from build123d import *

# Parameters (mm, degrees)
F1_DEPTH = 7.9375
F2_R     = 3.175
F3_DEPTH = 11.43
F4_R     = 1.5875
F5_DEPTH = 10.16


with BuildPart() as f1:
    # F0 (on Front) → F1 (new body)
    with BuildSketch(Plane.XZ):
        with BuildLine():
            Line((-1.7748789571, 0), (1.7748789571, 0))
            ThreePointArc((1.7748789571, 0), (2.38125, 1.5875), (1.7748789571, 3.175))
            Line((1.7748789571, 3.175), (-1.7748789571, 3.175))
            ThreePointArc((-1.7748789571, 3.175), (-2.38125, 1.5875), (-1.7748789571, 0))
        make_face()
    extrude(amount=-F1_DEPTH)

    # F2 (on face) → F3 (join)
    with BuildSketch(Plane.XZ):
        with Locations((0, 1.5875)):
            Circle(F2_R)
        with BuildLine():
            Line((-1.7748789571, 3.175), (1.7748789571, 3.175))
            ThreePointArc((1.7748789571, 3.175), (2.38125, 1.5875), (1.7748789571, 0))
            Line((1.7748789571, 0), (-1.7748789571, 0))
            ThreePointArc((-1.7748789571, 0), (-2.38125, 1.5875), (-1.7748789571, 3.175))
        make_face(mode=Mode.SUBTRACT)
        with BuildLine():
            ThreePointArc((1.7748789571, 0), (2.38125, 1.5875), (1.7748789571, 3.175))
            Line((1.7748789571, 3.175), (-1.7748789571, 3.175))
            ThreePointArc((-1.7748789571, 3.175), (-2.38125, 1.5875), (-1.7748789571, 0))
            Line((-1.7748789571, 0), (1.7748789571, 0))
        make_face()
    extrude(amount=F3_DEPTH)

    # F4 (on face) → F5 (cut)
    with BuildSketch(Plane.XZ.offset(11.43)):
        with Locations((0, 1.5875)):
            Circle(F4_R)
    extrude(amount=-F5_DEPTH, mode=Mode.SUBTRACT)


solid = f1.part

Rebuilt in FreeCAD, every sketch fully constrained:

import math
import FreeCAD as App
import Part
import Sketcher
Q = App.Units.Quantity

doc = App.newDocument("Part")
params = doc.addObject("Spreadsheet::Sheet", "Params")
for row, (alias, value) in enumerate([
    ("sketch1_radius", "0.09375 in"),
    ("pad1_length", "0.3125 in"),
    ("sketch2_diameter", "0.25 in"),
    ("pad2_length", "0.45 in"),
    ("sketch3_diameter", "0.125 in"),
    ("pocket1_length", "0.4 in"),
], start=1):
    params.set(f"A{row}", alias)
    params.set(f"B{row}", "=" + value)
    params.setAlias(f"B{row}", alias)

body = doc.addObject("PartDesign::Body", "Body")

sketch1 = body.newObject("Sketcher::SketchObject", "Sketch")
sketch1.AttachmentSupport = (doc.getObject("XZ_Plane"), [""])
sketch1.MapMode = "FlatFace"
sketch1.addGeometry(Part.LineSegment(App.Vector(-1.8, 0, 0), App.Vector(1.8, 0, 0)), False)
sketch1.addGeometry(Part.ArcOfCircle(Part.Circle(App.Vector(0, 1.6, 0), App.Vector(0, 0, 1), 2.4), math.radians(-42), math.radians(42)), False)
sketch1.addGeometry(Part.LineSegment(App.Vector(1.8, 3.2, 0), App.Vector(-1.8, 3.2, 0)), False)
sketch1.addGeometry(Part.ArcOfCircle(Part.Circle(App.Vector(0, 1.6, 0), App.Vector(0, 0, 1), 2.4), math.radians(138), math.radians(222)), False)
sketch1.addConstraint(Sketcher.Constraint("Coincident", 0, 2, 1, 1))
sketch1.addConstraint(Sketcher.Constraint("Coincident", 1, 2, 2, 1))
sketch1.addConstraint(Sketcher.Constraint("Coincident", 2, 2, 3, 1))
sketch1.addConstraint(Sketcher.Constraint("Coincident", 3, 2, 0, 1))
sketch1.addConstraint(Sketcher.Constraint("Horizontal", 0))
sketch1.addConstraint(Sketcher.Constraint("Horizontal", 2))
sketch1.addConstraint(Sketcher.Constraint("Coincident", 3, 3, 1, 3))
sketch1.addConstraint(Sketcher.Constraint("Equal", 1, 3))
sketch1.addConstraint(Sketcher.Constraint("Symmetric", 0, 2, 3, 2, -1, 1))
sketch1.addConstraint(Sketcher.Constraint("Vertical", 0, 2, 1, 2))
sketch1.addConstraint(Sketcher.Constraint("Radius", 1, Q("0.09375 in")))
sketch1.addConstraint(Sketcher.Constraint("DistanceY", -1, 1, 1, 3, Q("0.0625 in")))
sketch1.setExpression("Constraints[10]", "Params.sketch1_radius")
pad1 = body.newObject("PartDesign::Pad", "Pad")
pad1.Profile = sketch1
pad1.setExpression("Length", "Params.pad1_length")
pad1.Reversed = True

sketch2 = body.newObject("Sketcher::SketchObject", "Sketch001")
sketch2.AttachmentSupport = (doc.getObject("XZ_Plane"), [""])
sketch2.MapMode = "FlatFace"
sketch2.addGeometry(Part.Circle(App.Vector(0, 1.6, 0), App.Vector(0, 0, 1), 3.2), False)
sketch2.addConstraint(Sketcher.Constraint("PointOnObject", 0, 3, -2))
sketch2.addConstraint(Sketcher.Constraint("Diameter", 0, Q("0.25 in")))
sketch2.addConstraint(Sketcher.Constraint("DistanceY", -1, 1, 0, 3, Q("0.0625 in")))
sketch2.setExpression("Constraints[1]", "Params.sketch2_diameter")
pad2 = body.newObject("PartDesign::Pad", "Pad001")
pad2.Profile = sketch2
pad2.setExpression("Length", "Params.pad2_length")

sketch3 = body.newObject("Sketcher::SketchObject", "Sketch002")
sketch3.AttachmentSupport = (doc.getObject("XZ_Plane"), [""])
sketch3.MapMode = "FlatFace"
sketch3.AttachmentOffset = App.Placement(App.Vector(0, 0, 0.45 * 25.4), App.Rotation())
sketch3.addGeometry(Part.Circle(App.Vector(0, 1.6, 0), App.Vector(0, 0, 1), 1.6), False)
sketch3.addConstraint(Sketcher.Constraint("PointOnObject", 0, 3, -2))
sketch3.addConstraint(Sketcher.Constraint("Diameter", 0, Q("0.125 in")))
sketch3.addConstraint(Sketcher.Constraint("DistanceY", -1, 1, 0, 3, Q("0.0625 in")))
sketch3.setExpression("Constraints[1]", "Params.sketch3_diameter")
pocket1 = body.newObject("PartDesign::Pocket", "Pocket")
pocket1.Profile = sketch3
pocket1.setExpression("Length", "Params.pocket1_length")

doc.recompute()
